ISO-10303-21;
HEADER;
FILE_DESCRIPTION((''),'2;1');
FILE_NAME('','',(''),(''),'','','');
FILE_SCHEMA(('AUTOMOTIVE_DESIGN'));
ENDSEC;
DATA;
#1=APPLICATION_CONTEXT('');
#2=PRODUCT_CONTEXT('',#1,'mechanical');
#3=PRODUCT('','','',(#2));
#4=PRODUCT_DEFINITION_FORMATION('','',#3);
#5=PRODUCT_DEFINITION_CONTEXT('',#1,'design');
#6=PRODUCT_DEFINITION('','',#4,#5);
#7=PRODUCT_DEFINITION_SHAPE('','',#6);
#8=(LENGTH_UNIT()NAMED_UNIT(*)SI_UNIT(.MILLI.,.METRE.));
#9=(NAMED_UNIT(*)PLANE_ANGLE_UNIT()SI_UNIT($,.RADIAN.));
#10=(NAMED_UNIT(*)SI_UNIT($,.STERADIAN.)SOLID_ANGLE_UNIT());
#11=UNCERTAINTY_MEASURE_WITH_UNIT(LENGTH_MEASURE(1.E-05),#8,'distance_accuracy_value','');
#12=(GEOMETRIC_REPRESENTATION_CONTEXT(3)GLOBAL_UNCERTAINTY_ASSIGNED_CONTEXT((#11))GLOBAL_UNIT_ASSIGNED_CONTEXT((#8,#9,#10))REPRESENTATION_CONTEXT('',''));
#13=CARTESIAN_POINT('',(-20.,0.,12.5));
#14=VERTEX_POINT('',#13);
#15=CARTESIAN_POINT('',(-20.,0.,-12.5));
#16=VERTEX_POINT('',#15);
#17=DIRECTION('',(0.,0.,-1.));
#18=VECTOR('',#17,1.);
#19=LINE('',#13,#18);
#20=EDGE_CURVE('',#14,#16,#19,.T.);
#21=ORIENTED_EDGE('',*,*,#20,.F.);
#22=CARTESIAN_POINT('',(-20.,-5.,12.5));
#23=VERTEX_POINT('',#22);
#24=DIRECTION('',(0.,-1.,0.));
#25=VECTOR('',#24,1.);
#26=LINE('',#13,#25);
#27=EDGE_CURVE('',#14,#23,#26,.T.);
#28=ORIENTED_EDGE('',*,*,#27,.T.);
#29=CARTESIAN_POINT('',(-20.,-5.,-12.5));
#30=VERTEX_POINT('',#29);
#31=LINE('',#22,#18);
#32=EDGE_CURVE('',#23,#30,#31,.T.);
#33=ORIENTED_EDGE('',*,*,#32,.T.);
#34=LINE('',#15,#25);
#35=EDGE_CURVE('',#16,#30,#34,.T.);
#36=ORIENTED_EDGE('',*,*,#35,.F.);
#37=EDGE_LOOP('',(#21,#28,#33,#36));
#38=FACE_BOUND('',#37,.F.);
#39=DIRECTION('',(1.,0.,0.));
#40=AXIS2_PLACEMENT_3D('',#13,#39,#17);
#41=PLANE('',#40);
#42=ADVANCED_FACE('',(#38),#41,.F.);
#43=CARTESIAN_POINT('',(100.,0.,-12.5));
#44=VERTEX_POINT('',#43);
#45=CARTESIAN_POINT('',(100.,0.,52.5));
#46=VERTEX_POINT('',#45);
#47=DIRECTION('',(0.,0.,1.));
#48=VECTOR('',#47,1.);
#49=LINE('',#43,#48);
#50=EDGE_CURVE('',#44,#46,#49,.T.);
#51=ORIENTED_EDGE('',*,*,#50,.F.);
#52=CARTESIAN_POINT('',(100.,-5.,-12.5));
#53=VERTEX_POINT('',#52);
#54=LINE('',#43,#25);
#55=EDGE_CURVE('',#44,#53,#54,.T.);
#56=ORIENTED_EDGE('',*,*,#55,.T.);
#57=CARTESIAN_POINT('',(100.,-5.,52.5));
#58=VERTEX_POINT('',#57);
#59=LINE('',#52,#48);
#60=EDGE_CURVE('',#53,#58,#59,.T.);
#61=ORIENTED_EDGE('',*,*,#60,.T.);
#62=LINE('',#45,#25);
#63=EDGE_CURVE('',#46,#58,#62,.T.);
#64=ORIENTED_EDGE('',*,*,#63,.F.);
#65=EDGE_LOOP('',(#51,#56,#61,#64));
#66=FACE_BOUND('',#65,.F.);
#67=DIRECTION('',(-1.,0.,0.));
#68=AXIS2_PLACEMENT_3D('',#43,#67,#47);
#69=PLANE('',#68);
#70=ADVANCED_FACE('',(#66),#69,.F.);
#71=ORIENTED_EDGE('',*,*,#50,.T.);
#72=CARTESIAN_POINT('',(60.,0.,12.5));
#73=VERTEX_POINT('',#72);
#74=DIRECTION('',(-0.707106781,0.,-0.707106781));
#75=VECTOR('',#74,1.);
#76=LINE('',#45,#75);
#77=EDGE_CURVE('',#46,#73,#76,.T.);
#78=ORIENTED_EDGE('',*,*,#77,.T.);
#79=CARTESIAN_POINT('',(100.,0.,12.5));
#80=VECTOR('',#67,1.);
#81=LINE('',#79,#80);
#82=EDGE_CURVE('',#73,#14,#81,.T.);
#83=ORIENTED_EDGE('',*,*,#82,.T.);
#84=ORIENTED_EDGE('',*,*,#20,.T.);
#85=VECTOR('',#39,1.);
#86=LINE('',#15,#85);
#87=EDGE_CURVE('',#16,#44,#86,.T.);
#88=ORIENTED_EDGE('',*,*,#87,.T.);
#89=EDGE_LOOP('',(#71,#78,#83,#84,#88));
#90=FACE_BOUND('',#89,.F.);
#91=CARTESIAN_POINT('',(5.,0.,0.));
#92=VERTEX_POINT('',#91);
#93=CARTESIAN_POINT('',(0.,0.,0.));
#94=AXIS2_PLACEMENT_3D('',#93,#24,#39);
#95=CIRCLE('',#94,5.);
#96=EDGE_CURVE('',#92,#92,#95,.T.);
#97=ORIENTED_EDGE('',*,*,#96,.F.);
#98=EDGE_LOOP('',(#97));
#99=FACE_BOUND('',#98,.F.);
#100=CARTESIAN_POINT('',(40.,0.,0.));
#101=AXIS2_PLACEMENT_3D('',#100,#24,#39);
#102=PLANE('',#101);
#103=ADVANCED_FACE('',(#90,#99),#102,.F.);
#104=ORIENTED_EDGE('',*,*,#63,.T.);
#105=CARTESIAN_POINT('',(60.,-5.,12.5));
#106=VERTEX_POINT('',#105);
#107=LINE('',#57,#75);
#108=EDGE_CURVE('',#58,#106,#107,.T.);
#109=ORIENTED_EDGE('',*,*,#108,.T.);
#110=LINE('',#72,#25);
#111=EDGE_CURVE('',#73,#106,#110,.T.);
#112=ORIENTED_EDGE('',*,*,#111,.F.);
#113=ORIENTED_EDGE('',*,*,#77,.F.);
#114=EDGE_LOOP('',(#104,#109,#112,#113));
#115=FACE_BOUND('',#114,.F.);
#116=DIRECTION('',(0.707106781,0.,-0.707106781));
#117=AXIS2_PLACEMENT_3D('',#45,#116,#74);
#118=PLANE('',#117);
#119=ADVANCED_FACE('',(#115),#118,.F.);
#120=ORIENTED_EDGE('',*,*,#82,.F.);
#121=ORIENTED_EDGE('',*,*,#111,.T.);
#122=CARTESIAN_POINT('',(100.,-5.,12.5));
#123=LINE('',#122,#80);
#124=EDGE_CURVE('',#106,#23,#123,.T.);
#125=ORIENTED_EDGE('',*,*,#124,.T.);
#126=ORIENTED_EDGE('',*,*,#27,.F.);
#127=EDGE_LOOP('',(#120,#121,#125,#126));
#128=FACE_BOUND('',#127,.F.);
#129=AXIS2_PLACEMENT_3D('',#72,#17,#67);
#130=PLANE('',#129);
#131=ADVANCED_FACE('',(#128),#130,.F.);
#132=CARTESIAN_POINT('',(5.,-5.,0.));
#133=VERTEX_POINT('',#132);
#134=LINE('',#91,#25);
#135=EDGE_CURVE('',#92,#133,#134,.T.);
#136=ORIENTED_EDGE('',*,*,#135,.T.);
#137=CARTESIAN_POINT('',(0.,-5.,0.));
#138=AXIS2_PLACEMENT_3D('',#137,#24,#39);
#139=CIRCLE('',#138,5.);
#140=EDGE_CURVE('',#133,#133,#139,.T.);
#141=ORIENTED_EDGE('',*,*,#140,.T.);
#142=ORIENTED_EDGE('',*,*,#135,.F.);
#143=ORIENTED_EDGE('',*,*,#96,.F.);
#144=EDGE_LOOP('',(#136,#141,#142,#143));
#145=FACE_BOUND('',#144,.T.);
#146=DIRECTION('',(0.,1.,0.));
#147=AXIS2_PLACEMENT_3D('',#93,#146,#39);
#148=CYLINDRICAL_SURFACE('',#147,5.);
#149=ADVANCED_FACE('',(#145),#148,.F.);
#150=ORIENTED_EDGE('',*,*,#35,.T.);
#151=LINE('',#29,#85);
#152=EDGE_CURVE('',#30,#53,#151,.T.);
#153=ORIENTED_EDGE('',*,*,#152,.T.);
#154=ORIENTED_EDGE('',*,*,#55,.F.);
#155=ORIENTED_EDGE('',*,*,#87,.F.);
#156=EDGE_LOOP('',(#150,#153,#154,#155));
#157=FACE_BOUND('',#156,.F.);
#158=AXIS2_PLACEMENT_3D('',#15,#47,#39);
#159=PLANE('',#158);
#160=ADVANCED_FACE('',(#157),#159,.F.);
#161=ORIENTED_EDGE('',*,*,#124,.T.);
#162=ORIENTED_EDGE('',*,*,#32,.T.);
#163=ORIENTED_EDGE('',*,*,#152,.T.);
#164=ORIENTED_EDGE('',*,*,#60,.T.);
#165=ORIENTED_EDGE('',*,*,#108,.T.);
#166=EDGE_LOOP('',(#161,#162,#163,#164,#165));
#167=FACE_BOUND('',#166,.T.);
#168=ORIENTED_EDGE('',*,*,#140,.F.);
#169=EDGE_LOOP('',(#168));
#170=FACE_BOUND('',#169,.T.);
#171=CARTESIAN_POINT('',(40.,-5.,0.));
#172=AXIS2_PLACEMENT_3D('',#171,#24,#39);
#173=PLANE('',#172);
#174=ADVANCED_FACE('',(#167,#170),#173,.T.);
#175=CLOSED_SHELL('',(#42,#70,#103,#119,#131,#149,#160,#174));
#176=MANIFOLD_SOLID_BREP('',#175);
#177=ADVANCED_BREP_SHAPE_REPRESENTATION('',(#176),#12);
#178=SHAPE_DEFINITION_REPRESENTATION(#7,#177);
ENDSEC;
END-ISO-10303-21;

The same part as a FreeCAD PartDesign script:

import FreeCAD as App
import Part
import Sketcher

doc = App.newDocument("Part")
body = doc.addObject("PartDesign::Body", "Body")

# Sketch on XZ plane
sketch1 = body.newObject("Sketcher::SketchObject", "Sketch")
sketch1.AttachmentSupport = (doc.getObject("XZ_Plane"), [""])
sketch1.MapMode = "FlatFace"
sketch1.addGeometry(Part.LineSegment(App.Vector(-20, 12, 0), App.Vector(-20, -12, 0)), False)
sketch1.addGeometry(Part.LineSegment(App.Vector(-20, -12, 0), App.Vector(100, -12, 0)), False)
sketch1.addGeometry(Part.LineSegment(App.Vector(100, -12, 0), App.Vector(100, 52, 0)), False)
sketch1.addGeometry(Part.LineSegment(App.Vector(100, 52, 0), App.Vector(60, 12, 0)), False)
sketch1.addGeometry(Part.LineSegment(App.Vector(60, 12, 0), App.Vector(-20, 12, 0)), False)
sketch1.addGeometry(Part.Circle(App.Vector(0, 0, 0), App.Vector(0, 0, 1), 5), False)
sketch1.addConstraint(Sketcher.Constraint("Coincident", 0, 2, 1, 1))
sketch1.addConstraint(Sketcher.Constraint("Coincident", 1, 2, 2, 1))
sketch1.addConstraint(Sketcher.Constraint("Coincident", 2, 2, 3, 1))
sketch1.addConstraint(Sketcher.Constraint("Coincident", 3, 2, 4, 1))
sketch1.addConstraint(Sketcher.Constraint("Coincident", 4, 2, 0, 1))
sketch1.addConstraint(Sketcher.Constraint("Vertical", 0))
sketch1.addConstraint(Sketcher.Constraint("Horizontal", 1))
sketch1.addConstraint(Sketcher.Constraint("Vertical", 2))
sketch1.addConstraint(Sketcher.Constraint("Horizontal", 4))
sketch1.addConstraint(Sketcher.Constraint("Coincident", 5, 3, -1, 1))
sketch1.addConstraint(Sketcher.Constraint("Diameter", 5, 10.0))
sketch1.addConstraint(Sketcher.Constraint("DistanceX", 1, 1, 1, 2, 120.0))
sketch1.addConstraint(Sketcher.Constraint("DistanceX", 4, 2, 4, 1, 80.0))
sketch1.addConstraint(Sketcher.Constraint("DistanceY", 0, 2, 0, 1, 25.0))
sketch1.addConstraint(Sketcher.Constraint("DistanceY", 2, 1, 2, 2, 65.0))
sketch1.addConstraint(Sketcher.Constraint("DistanceX", 0, 2, -1, 1, 20.0))
sketch1.addConstraint(Sketcher.Constraint("DistanceY", 0, 2, -1, 1, 12.5))
pad1 = body.newObject("PartDesign::Pad", "Pad")
pad1.Profile = sketch1
pad1.Length = 5

doc.recompute()
